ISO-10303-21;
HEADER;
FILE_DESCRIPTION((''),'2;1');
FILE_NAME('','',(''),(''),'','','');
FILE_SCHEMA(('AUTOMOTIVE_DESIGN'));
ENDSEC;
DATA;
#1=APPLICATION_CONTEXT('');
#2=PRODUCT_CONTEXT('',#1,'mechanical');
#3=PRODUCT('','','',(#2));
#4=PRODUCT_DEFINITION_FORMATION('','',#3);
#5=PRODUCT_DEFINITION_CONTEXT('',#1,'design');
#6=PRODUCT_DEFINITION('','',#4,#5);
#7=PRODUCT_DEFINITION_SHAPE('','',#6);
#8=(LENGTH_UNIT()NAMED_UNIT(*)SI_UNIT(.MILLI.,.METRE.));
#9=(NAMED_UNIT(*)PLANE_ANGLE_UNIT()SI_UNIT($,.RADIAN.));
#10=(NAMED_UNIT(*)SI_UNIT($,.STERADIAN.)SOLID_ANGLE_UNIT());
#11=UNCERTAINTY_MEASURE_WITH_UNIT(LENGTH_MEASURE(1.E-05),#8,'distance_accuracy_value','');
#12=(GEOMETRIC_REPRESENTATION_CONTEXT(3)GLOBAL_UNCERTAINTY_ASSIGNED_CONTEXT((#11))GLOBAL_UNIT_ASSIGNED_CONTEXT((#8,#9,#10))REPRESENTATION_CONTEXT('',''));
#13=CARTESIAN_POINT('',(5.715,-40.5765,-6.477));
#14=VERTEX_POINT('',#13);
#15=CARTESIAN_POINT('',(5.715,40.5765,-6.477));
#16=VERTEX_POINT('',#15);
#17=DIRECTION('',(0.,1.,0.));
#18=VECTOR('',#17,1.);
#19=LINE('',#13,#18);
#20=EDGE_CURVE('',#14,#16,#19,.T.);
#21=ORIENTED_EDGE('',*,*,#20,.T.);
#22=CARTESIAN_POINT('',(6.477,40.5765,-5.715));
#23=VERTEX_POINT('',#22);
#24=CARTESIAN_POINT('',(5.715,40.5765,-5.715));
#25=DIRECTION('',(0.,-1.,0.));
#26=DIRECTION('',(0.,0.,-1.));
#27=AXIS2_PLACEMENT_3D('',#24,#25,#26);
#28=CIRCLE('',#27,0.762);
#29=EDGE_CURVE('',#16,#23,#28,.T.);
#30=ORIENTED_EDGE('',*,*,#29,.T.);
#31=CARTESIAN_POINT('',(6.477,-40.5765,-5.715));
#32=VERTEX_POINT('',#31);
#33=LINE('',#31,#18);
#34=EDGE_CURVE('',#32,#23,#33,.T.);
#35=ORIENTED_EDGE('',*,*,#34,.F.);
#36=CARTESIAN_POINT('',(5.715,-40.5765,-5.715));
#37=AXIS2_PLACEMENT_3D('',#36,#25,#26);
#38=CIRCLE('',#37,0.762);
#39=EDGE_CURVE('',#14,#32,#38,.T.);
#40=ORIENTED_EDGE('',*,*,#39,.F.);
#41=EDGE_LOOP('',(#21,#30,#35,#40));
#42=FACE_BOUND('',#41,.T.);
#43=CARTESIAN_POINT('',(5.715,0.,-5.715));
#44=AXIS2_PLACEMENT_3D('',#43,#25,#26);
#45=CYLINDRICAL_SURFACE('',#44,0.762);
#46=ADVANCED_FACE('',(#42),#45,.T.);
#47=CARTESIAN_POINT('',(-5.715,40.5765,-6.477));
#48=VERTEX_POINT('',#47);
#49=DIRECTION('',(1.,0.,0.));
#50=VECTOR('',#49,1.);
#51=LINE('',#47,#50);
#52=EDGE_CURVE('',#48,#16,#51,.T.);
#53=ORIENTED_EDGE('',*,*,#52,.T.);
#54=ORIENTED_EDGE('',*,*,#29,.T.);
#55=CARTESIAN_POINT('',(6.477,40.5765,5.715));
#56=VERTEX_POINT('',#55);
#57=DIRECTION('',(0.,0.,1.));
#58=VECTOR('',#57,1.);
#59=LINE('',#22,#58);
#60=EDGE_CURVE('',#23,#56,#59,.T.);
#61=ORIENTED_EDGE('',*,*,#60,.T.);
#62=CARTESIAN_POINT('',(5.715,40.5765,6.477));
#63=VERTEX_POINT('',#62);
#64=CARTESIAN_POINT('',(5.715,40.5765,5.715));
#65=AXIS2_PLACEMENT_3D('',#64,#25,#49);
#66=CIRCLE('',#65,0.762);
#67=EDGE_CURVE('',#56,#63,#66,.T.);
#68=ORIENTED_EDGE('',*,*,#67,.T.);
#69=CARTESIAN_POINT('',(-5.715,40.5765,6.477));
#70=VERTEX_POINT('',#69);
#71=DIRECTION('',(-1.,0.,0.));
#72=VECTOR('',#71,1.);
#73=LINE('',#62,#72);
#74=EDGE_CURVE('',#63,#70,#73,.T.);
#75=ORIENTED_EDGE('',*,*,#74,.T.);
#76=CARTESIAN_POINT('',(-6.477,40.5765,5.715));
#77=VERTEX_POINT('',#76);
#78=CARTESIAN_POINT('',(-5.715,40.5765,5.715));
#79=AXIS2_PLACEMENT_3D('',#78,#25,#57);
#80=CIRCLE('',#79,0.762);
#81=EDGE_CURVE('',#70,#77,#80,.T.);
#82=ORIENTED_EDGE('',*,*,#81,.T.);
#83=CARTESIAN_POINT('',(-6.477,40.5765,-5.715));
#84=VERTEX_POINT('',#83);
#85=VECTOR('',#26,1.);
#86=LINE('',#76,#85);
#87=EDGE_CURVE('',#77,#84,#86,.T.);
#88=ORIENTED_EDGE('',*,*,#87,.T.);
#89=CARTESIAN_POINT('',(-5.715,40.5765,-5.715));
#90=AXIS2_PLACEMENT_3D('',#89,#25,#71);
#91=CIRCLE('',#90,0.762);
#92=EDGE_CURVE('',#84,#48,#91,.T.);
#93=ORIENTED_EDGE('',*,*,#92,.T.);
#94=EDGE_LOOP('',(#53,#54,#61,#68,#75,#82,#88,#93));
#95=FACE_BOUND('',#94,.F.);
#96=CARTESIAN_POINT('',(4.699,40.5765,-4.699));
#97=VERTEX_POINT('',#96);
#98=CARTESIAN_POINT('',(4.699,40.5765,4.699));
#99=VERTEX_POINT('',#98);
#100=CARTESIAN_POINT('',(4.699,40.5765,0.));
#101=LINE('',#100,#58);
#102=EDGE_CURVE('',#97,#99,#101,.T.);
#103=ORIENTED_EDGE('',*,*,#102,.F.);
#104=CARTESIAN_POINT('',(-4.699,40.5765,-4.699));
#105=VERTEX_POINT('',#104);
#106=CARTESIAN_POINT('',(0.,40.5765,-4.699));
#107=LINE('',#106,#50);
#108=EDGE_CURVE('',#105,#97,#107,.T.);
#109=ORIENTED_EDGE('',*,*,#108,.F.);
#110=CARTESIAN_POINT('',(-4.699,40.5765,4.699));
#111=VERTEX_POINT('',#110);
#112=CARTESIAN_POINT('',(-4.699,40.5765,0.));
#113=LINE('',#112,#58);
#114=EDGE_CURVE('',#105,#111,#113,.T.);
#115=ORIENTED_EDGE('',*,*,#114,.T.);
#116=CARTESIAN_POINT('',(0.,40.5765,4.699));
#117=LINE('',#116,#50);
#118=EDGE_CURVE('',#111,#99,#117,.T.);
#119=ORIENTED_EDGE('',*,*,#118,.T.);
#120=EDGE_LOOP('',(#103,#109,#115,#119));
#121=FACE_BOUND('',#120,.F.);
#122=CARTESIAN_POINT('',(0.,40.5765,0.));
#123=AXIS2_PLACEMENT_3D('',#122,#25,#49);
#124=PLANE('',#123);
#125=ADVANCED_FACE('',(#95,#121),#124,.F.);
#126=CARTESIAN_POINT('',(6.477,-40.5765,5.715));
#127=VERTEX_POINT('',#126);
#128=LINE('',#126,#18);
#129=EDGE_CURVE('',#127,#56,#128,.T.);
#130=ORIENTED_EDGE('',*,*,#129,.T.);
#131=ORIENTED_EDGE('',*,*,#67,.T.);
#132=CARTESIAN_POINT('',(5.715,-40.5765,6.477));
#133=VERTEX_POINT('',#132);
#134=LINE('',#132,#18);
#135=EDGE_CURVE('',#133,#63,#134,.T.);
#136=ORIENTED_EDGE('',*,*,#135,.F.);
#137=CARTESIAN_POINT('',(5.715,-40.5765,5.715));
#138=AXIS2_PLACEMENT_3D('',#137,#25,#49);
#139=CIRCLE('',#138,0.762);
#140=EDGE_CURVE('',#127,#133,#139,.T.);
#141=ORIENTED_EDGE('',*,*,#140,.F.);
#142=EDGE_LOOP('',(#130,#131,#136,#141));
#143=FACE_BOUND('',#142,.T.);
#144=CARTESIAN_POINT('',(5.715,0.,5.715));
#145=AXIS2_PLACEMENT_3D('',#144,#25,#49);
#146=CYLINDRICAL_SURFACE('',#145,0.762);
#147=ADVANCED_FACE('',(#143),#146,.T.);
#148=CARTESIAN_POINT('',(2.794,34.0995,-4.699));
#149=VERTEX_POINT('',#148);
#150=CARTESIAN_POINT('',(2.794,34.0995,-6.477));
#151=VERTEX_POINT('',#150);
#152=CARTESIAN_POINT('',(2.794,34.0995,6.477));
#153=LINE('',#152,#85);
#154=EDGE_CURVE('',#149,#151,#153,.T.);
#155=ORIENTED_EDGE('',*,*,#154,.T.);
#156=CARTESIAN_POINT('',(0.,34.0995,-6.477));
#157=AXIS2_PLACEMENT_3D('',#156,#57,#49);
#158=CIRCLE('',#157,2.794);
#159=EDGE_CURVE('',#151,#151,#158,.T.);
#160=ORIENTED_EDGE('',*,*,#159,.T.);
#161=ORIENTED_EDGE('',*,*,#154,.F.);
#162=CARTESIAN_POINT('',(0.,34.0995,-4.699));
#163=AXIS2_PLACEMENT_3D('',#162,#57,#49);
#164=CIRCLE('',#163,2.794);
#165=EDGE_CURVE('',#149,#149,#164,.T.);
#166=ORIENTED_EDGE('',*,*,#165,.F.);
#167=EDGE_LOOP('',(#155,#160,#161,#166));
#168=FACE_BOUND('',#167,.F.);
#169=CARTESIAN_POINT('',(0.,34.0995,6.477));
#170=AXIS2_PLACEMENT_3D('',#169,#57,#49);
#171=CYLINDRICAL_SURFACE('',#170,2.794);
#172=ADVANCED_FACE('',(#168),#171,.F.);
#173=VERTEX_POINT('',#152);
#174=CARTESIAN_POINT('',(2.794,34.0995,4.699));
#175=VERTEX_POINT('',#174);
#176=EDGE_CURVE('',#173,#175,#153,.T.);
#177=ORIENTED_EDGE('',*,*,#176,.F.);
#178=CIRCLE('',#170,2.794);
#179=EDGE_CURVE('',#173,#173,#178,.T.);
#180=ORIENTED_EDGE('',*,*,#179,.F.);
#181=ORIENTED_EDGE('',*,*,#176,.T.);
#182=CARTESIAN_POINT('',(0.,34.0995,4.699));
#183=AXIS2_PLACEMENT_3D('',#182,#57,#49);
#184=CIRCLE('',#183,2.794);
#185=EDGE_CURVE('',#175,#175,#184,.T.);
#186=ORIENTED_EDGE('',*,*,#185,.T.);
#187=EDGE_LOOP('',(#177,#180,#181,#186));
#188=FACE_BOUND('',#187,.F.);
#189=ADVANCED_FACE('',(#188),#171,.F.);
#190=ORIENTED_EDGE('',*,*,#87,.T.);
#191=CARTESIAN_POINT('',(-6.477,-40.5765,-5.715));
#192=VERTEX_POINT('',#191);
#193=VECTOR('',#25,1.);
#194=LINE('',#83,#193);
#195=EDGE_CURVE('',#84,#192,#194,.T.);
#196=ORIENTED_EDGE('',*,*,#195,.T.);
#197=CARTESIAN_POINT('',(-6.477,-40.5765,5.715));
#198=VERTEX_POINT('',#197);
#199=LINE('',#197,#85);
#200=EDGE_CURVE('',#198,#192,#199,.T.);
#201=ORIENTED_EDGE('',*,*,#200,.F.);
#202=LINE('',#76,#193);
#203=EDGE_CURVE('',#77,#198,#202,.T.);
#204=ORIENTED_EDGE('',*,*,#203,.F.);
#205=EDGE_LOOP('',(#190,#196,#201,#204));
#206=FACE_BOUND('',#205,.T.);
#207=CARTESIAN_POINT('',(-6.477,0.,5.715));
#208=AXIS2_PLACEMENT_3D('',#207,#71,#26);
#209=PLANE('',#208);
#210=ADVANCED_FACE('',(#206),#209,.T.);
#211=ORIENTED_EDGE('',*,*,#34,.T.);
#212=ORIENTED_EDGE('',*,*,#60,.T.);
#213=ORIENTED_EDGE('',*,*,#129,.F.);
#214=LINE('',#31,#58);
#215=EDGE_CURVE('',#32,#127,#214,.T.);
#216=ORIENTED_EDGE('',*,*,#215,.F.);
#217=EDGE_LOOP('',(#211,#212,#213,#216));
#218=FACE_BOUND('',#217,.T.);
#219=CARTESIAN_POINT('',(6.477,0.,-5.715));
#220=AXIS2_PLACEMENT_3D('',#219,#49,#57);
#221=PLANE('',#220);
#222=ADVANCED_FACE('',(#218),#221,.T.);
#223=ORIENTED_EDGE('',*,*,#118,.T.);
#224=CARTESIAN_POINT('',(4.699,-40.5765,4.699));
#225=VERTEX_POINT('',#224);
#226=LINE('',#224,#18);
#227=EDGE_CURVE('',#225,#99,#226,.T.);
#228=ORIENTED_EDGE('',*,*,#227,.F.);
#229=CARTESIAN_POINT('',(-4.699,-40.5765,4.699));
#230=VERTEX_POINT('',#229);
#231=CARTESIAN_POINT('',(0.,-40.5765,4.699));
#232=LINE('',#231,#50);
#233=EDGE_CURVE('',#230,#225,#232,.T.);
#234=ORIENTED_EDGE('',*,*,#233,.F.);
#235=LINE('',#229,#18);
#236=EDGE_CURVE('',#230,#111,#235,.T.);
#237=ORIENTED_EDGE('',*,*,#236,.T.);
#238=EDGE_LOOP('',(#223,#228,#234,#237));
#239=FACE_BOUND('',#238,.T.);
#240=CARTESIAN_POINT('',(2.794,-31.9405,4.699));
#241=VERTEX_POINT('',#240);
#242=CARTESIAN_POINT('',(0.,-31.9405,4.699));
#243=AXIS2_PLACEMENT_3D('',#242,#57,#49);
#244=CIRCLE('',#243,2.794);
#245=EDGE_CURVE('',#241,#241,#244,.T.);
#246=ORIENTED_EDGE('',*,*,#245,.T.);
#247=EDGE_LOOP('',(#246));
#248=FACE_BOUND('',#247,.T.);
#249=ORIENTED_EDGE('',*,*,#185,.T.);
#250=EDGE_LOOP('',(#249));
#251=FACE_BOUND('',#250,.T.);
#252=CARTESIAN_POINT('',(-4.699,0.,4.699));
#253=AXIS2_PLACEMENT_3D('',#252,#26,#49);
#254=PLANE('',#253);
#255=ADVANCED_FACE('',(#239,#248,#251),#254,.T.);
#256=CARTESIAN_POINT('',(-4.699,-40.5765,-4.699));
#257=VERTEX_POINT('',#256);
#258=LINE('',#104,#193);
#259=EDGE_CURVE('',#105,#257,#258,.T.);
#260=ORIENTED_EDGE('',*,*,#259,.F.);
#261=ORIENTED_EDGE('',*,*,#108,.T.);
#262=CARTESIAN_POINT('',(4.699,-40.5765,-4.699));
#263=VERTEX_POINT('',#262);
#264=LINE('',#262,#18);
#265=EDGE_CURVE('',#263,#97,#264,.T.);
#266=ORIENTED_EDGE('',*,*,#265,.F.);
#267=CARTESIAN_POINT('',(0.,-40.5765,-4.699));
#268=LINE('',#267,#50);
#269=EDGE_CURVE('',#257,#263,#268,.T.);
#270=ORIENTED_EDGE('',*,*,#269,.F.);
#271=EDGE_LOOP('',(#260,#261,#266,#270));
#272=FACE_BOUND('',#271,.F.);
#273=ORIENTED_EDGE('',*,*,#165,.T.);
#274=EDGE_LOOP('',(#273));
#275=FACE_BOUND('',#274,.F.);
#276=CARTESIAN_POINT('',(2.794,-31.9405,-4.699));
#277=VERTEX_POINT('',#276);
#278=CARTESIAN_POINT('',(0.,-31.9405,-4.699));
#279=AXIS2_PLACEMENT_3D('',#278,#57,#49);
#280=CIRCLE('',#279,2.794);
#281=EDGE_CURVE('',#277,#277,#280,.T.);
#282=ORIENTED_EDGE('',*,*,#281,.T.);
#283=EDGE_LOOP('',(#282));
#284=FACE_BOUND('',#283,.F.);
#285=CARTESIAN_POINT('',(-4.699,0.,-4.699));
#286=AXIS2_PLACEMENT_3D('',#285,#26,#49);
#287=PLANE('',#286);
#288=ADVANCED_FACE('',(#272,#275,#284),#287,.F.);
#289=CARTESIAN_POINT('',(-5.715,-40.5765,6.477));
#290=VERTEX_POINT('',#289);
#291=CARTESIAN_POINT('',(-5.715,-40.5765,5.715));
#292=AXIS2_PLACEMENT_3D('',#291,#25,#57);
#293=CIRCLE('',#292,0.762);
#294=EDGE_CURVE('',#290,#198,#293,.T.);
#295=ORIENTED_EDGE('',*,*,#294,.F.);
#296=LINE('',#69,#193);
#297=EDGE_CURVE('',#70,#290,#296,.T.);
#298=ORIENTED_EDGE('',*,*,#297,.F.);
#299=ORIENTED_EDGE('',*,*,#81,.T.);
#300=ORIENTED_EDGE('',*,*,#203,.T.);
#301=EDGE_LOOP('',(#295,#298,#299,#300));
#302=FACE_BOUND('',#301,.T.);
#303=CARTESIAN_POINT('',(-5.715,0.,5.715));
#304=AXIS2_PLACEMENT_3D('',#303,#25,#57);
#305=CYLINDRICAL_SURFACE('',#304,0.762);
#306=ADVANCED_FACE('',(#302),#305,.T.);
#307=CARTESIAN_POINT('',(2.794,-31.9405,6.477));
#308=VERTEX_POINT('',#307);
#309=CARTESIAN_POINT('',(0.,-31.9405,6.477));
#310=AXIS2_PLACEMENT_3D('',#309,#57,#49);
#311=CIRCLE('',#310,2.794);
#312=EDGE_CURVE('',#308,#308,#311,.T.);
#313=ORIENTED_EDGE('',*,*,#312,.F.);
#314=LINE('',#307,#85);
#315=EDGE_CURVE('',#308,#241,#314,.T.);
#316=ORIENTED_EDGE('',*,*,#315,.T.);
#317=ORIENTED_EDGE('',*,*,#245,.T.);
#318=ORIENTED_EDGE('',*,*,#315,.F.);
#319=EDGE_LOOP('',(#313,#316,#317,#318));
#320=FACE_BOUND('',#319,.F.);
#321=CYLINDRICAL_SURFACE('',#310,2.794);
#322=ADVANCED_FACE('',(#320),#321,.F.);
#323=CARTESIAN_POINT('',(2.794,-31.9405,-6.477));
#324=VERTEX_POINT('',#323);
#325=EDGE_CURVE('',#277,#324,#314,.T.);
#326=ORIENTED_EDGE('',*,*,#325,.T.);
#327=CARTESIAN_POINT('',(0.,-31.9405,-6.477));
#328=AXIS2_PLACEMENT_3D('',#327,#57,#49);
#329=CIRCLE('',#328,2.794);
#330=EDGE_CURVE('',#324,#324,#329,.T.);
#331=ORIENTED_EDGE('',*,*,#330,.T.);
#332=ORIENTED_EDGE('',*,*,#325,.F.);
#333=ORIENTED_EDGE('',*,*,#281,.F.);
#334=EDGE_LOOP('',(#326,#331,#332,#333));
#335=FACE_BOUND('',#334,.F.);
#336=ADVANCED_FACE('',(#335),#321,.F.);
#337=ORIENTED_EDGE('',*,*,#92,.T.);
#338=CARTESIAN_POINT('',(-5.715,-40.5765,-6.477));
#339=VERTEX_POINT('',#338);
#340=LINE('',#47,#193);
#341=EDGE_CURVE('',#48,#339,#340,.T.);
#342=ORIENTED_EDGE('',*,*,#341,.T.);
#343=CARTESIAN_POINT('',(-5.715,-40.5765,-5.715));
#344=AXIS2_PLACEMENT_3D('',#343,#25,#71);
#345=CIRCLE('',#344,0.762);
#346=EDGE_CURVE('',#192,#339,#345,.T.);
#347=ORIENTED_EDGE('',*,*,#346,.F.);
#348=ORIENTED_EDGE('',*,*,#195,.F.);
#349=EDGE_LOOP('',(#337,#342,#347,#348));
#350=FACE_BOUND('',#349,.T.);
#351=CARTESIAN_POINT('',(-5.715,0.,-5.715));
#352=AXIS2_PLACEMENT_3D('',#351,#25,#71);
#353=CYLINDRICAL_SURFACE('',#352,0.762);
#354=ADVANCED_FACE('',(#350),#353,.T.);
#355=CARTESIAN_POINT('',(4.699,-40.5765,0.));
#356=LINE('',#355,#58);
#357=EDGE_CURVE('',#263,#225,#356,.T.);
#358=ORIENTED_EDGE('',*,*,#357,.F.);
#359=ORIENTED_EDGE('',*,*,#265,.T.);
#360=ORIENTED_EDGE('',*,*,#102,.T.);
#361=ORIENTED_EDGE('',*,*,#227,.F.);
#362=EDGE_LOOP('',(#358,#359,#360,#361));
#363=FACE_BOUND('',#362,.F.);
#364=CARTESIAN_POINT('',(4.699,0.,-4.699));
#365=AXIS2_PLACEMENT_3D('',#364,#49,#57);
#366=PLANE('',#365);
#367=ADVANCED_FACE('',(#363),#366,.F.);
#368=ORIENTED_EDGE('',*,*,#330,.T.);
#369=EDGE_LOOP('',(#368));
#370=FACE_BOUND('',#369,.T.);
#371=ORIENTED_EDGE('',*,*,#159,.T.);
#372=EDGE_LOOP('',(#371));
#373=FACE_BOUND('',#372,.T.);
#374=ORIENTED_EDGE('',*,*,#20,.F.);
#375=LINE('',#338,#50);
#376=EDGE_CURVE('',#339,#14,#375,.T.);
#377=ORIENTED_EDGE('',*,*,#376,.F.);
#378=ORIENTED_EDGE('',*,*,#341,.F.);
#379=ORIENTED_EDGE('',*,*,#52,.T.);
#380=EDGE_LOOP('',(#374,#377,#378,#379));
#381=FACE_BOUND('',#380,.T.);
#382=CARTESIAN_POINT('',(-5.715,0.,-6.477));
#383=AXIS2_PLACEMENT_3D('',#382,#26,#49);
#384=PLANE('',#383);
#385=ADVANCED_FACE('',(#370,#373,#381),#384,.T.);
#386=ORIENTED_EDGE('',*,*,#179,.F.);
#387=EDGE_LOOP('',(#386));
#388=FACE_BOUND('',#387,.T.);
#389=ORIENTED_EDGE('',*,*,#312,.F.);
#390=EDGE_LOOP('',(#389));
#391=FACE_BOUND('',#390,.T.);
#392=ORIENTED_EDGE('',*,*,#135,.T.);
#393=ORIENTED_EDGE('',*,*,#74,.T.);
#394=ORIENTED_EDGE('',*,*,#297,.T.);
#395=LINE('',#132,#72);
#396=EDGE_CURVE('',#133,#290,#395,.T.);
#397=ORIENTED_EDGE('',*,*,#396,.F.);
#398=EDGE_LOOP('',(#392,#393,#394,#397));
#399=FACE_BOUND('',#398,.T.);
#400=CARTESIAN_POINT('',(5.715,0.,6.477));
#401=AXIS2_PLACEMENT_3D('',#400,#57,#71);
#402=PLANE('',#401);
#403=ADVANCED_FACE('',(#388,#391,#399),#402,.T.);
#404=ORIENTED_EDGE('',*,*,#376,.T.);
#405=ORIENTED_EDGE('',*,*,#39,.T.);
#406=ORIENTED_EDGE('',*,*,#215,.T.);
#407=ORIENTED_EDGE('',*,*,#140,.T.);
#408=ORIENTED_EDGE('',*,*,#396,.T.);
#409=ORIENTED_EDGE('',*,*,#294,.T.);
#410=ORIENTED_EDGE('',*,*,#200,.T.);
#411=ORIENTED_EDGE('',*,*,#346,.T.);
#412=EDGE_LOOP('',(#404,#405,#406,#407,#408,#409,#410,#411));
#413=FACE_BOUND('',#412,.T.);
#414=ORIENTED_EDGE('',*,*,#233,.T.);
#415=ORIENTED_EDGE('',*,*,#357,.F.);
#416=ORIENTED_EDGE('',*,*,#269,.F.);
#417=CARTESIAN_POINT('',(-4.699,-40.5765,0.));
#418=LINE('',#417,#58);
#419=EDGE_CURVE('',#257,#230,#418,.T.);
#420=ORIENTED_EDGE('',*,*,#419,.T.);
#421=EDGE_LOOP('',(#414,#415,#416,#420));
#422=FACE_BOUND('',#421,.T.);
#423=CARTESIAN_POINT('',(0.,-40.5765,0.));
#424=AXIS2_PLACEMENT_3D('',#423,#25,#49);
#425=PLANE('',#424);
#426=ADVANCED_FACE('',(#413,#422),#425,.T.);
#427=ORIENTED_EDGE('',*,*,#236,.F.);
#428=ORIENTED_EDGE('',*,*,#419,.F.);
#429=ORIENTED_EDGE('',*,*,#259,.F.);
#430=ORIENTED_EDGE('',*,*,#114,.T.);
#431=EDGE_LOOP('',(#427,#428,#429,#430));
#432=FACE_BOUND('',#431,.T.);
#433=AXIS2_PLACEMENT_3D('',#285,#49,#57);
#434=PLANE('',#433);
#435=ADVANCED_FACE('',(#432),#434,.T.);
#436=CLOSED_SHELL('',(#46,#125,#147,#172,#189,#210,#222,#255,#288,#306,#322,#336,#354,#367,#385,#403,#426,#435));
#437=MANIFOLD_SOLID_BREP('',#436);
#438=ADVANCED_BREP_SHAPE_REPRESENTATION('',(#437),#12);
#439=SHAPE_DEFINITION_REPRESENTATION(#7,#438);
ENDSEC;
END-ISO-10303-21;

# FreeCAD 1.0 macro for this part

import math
import FreeCAD as App
import Part
import Sketcher
from FreeCAD import Vector
Q = App.Units.Quantity

doc = App.newDocument("Part")
body = doc.addObject("PartDesign::Body", "Body")

# Sketch on XZ plane
sketch1 = doc.addObject("Sketcher::SketchObject", "Sketch")
body.addObject(sketch1)
sketch1.AttachmentSupport = (doc.XZ_Plane, [""])
sketch1.MapMode = "FlatFace"
sketch1.addGeometry([
    Part.LineSegment(Vector(5.715, 6.477, 0), Vector(-5.715, 6.477, 0)),  # 0
    Part.ArcOfCircle(Part.Circle(Vector(-5.715, 5.715, 0), Vector(0, 0, 1), 0.762), math.radians(90), math.radians(180)),  # 1
    Part.LineSegment(Vector(-6.477, 5.715, 0), Vector(-6.477, -5.715, 0)),  # 2
    Part.ArcOfCircle(Part.Circle(Vector(-5.715, -5.715, 0), Vector(0, 0, 1), 0.762), math.radians(180), math.radians(270)),  # 3
    Part.LineSegment(Vector(-5.715, -6.477, 0), Vector(5.715, -6.477, 0)),  # 4
    Part.ArcOfCircle(Part.Circle(Vector(5.715, -5.715, 0), Vector(0, 0, 1), 0.762), math.radians(-90), math.radians(0)),  # 5
    Part.LineSegment(Vector(6.477, -5.715, 0), Vector(6.477, 5.715, 0)),  # 6
    Part.ArcOfCircle(Part.Circle(Vector(5.715, 5.715, 0), Vector(0, 0, 1), 0.762), math.radians(0), math.radians(90)),  # 7
    Part.LineSegment(Vector(4.699, -4.699, 0), Vector(-4.699, -4.699, 0)),  # 8
    Part.LineSegment(Vector(-4.699, -4.699, 0), Vector(-4.699, 4.699, 0)),  # 9
    Part.LineSegment(Vector(-4.699, 4.699, 0), Vector(4.699, 4.699, 0)),  # 10
    Part.LineSegment(Vector(4.699, 4.699, 0), Vector(4.699, -4.699, 0)),  # 11
], False)
sketch1.addConstraint([
    Sketcher.Constraint("Tangent", 0, 2, 1, 1),
    Sketcher.Constraint("Tangent", 1, 2, 2, 1),
    Sketcher.Constraint("Tangent", 2, 2, 3, 1),
    Sketcher.Constraint("Tangent", 3, 2, 4, 1),
    Sketcher.Constraint("Tangent", 4, 2, 5, 1),
    Sketcher.Constraint("Tangent", 5, 2, 6, 1),
    Sketcher.Constraint("Tangent", 6, 2, 7, 1),
    Sketcher.Constraint("Tangent", 7, 2, 0, 1),
    Sketcher.Constraint("Coincident", 8, 2, 9, 1),
    Sketcher.Constraint("Coincident", 9, 2, 10, 1),
    Sketcher.Constraint("Coincident", 10, 2, 11, 1),
    Sketcher.Constraint("Coincident", 11, 2, 8, 1),
    Sketcher.Constraint("Horizontal", 0),
    Sketcher.Constraint("Vertical", 2),
    Sketcher.Constraint("Horizontal", 4),
    Sketcher.Constraint("Vertical", 6),
    Sketcher.Constraint("Horizontal", 8),
    Sketcher.Constraint("Vertical", 9),
    Sketcher.Constraint("Horizontal", 10),
    Sketcher.Constraint("Vertical", 11),
    Sketcher.Constraint("Equal", 1, 3),
    Sketcher.Constraint("Equal", 3, 5),
    Sketcher.Constraint("Equal", 5, 7),
    Sketcher.Constraint("Symmetric", 1, 3, 5, 3, -1, 1),
    Sketcher.Constraint("Symmetric", 8, 2, 10, 2, -1, 1),
    Sketcher.Constraint("Equal", 4, 2),
    Sketcher.Constraint("Equal", 10, 9),
    Sketcher.Constraint("Radius", 1, Q("0.03 in")),
    Sketcher.Constraint("DistanceX", 0, 2, 0, 1, Q("0.45 in")),
    Sketcher.Constraint("DistanceX", 8, 2, 8, 1, Q("0.37 in")),
])
pad1 = doc.addObject("PartDesign::Pad", "Pad")
body.addObject(pad1)
pad1.Profile = sketch1
pad1.Length = Q("3.195 in")
pad1.Midplane = True

# Sketch on XY plane
sketch2 = doc.addObject("Sketcher::SketchObject", "Sketch001")
body.addObject(sketch2)
sketch2.AttachmentSupport = (doc.XY_Plane, [""])
sketch2.MapMode = "FlatFace"
sketch2.AttachmentOffset = App.Placement(Vector(0, 0, 0.255 * 25.4), App.Rotation())
sketch2.addGeometry([
    Part.Circle(Vector(0, -31.9405, 0), Vector(0, 0, 1), 2.794),
    Part.Circle(Vector(0, 34.0995, 0), Vector(0, 0, 1), 2.794),
], False)
sketch2.addConstraint([
    Sketcher.Constraint("Equal", 0, 1),
    Sketcher.Constraint("PointOnObject", 0, 3, -2),
    Sketcher.Constraint("PointOnObject", 1, 3, -2),
    Sketcher.Constraint("Diameter", 0, Q("0.22 in")),
    Sketcher.Constraint("DistanceY", 0, 3, 1, 3, Q("2.6 in")),
    Sketcher.Constraint("DistanceY", 0, 3, -1, 1, Q("1.2575 in")),
])
pocket1 = doc.addObject("PartDesign::Pocket", "Pocket")
body.addObject(pocket1)
pocket1.Profile = sketch2
pocket1.Type = "ThroughAll"

doc.recompute()
